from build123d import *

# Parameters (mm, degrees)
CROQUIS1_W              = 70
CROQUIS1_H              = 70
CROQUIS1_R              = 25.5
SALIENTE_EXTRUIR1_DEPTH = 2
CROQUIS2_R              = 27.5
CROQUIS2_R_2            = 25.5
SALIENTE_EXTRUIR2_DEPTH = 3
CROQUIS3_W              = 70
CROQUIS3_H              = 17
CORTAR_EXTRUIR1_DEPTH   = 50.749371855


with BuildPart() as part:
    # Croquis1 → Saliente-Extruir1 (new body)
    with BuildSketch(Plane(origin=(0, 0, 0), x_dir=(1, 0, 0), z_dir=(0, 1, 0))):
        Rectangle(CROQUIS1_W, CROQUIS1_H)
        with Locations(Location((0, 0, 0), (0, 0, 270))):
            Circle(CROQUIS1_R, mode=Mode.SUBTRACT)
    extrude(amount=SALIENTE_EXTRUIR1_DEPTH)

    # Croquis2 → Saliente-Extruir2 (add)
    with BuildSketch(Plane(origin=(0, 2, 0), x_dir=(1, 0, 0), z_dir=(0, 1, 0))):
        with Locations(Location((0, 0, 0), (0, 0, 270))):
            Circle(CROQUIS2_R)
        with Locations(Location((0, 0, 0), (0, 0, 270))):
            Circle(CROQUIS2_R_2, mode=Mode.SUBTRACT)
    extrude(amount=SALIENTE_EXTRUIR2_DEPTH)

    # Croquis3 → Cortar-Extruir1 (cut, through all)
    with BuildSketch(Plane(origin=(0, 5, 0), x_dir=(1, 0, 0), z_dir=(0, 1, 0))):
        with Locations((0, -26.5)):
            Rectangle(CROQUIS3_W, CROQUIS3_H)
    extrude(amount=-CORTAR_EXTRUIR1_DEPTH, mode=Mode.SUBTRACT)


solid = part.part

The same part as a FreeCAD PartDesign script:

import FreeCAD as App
import Part
import Sketcher
from FreeCAD import Vector
Q = App.Units.Quantity

doc = App.newDocument("Part")
body = doc.addObject("PartDesign::Body", "Body")

# Sketch on XZ plane
sketch1 = body.newObject("Sketcher::SketchObject", "Sketch")
sketch1.AttachmentSupport = (doc.getObject("XZ_Plane"), [""])
sketch1.MapMode = "FlatFace"
sketch1.addGeometry([
    Part.LineSegment(Vector(-35, -35, 0), Vector(-35, 35, 0)),  # 0
    Part.LineSegment(Vector(-35, 35, 0), Vector(35, 35, 0)),  # 1
    Part.LineSegment(Vector(35, 35, 0), Vector(35, -35, 0)),  # 2
    Part.LineSegment(Vector(35, -35, 0), Vector(-35, -35, 0)),  # 3
    Part.Circle(Vector(0, 0, 0), Vector(0, 0, 1), 26),  # 4
], False)
sketch1.addConstraint([
    Sketcher.Constraint("Coincident", 0, 2, 1, 1),
    Sketcher.Constraint("Coincident", 1, 2, 2, 1),
    Sketcher.Constraint("Coincident", 2, 2, 3, 1),
    Sketcher.Constraint("Coincident", 3, 2, 0, 1),
    Sketcher.Constraint("Vertical", 0),
    Sketcher.Constraint("Horizontal", 1),
    Sketcher.Constraint("Vertical", 2),
    Sketcher.Constraint("Horizontal", 3),
    Sketcher.Constraint("Coincident", 4, 3, -1, 1),
    Sketcher.Constraint("Symmetric", 0, 2, 2, 2, -1, 1),
    Sketcher.Constraint("Equal", 3, 0),
    Sketcher.Constraint("Diameter", 4, Q("51 mm")),
    Sketcher.Constraint("DistanceX", 1, 1, 1, 2, Q("70 mm")),
])
pad1 = body.newObject("PartDesign::Pad", "Pad")
pad1.Profile = sketch1
pad1.Length = 2
pad1.Reversed = True

# Sketch on XZ plane
sketch2 = body.newObject("Sketcher::SketchObject", "Sketch001")
sketch2.AttachmentSupport = (doc.getObject("XZ_Plane"), [""])
sketch2.MapMode = "FlatFace"
sketch2.AttachmentOffset = App.Placement(Vector(0, 0, -2), App.Rotation())
sketch2.addGeometry([
    Part.Circle(Vector(0, 0, 0), Vector(0, 0, 1), 28),
    Part.Circle(Vector(0, 0, 0), Vector(0, 0, 1), 26),
], False)
sketch2.addConstraint([
    Sketcher.Constraint("Coincident", 0, 3, -1, 1),
    Sketcher.Constraint("Coincident", 1, 3, -1, 1),
    Sketcher.Constraint("Diameter", 0, Q("55 mm")),
    Sketcher.Constraint("Diameter", 1, Q("51 mm")),
])
pad2 = body.newObject("PartDesign::Pad", "Pad001")
pad2.Profile = sketch2
pad2.Length = 3
pad2.Reversed = True

# Sketch on XZ plane
sketch3 = body.newObject("Sketcher::SketchObject", "Sketch002")
sketch3.AttachmentSupport = (doc.getObject("XZ_Plane"), [""])
sketch3.MapMode = "FlatFace"
sketch3.AttachmentOffset = App.Placement(Vector(0, 0, -5), App.Rotation())
sketch3.addGeometry([
    Part.LineSegment(Vector(-35, 18, 0), Vector(-35, 35, 0)),
    Part.LineSegment(Vector(-35, 35, 0), Vector(35, 35, 0)),
    Part.LineSegment(Vector(35, 35, 0), Vector(35, 18, 0)),
    Part.LineSegment(Vector(35, 18, 0), Vector(-35, 18, 0)),
], False)
sketch3.addConstraint([
    Sketcher.Constraint("Coincident", 0, 2, 1, 1),
    Sketcher.Constraint("Coincident", 1, 2, 2, 1),
    Sketcher.Constraint("Coincident", 2, 2, 3, 1),
    Sketcher.Constraint("Coincident", 3, 2, 0, 1),
    Sketcher.Constraint("Vertical", 0),
    Sketcher.Constraint("Horizontal", 1),
    Sketcher.Constraint("Vertical", 2),
    Sketcher.Constraint("Horizontal", 3),
    Sketcher.Constraint("DistanceX", 1, 1, 1, 2, Q("70 mm")),
    Sketcher.Constraint("DistanceY", 0, 1, 0, 2, Q("17 mm")),
    Sketcher.Constraint("DistanceX", 0, 2, -1, 1, Q("35 mm")),
    Sketcher.Constraint("DistanceY", -1, 1, 0, 2, Q("35 mm")),
])
pocket1 = body.newObject("PartDesign::Pocket", "Pocket")
pocket1.Profile = sketch3
pocket1.Type = "ThroughAll"
pocket1.Reversed = True

doc.recompute()
